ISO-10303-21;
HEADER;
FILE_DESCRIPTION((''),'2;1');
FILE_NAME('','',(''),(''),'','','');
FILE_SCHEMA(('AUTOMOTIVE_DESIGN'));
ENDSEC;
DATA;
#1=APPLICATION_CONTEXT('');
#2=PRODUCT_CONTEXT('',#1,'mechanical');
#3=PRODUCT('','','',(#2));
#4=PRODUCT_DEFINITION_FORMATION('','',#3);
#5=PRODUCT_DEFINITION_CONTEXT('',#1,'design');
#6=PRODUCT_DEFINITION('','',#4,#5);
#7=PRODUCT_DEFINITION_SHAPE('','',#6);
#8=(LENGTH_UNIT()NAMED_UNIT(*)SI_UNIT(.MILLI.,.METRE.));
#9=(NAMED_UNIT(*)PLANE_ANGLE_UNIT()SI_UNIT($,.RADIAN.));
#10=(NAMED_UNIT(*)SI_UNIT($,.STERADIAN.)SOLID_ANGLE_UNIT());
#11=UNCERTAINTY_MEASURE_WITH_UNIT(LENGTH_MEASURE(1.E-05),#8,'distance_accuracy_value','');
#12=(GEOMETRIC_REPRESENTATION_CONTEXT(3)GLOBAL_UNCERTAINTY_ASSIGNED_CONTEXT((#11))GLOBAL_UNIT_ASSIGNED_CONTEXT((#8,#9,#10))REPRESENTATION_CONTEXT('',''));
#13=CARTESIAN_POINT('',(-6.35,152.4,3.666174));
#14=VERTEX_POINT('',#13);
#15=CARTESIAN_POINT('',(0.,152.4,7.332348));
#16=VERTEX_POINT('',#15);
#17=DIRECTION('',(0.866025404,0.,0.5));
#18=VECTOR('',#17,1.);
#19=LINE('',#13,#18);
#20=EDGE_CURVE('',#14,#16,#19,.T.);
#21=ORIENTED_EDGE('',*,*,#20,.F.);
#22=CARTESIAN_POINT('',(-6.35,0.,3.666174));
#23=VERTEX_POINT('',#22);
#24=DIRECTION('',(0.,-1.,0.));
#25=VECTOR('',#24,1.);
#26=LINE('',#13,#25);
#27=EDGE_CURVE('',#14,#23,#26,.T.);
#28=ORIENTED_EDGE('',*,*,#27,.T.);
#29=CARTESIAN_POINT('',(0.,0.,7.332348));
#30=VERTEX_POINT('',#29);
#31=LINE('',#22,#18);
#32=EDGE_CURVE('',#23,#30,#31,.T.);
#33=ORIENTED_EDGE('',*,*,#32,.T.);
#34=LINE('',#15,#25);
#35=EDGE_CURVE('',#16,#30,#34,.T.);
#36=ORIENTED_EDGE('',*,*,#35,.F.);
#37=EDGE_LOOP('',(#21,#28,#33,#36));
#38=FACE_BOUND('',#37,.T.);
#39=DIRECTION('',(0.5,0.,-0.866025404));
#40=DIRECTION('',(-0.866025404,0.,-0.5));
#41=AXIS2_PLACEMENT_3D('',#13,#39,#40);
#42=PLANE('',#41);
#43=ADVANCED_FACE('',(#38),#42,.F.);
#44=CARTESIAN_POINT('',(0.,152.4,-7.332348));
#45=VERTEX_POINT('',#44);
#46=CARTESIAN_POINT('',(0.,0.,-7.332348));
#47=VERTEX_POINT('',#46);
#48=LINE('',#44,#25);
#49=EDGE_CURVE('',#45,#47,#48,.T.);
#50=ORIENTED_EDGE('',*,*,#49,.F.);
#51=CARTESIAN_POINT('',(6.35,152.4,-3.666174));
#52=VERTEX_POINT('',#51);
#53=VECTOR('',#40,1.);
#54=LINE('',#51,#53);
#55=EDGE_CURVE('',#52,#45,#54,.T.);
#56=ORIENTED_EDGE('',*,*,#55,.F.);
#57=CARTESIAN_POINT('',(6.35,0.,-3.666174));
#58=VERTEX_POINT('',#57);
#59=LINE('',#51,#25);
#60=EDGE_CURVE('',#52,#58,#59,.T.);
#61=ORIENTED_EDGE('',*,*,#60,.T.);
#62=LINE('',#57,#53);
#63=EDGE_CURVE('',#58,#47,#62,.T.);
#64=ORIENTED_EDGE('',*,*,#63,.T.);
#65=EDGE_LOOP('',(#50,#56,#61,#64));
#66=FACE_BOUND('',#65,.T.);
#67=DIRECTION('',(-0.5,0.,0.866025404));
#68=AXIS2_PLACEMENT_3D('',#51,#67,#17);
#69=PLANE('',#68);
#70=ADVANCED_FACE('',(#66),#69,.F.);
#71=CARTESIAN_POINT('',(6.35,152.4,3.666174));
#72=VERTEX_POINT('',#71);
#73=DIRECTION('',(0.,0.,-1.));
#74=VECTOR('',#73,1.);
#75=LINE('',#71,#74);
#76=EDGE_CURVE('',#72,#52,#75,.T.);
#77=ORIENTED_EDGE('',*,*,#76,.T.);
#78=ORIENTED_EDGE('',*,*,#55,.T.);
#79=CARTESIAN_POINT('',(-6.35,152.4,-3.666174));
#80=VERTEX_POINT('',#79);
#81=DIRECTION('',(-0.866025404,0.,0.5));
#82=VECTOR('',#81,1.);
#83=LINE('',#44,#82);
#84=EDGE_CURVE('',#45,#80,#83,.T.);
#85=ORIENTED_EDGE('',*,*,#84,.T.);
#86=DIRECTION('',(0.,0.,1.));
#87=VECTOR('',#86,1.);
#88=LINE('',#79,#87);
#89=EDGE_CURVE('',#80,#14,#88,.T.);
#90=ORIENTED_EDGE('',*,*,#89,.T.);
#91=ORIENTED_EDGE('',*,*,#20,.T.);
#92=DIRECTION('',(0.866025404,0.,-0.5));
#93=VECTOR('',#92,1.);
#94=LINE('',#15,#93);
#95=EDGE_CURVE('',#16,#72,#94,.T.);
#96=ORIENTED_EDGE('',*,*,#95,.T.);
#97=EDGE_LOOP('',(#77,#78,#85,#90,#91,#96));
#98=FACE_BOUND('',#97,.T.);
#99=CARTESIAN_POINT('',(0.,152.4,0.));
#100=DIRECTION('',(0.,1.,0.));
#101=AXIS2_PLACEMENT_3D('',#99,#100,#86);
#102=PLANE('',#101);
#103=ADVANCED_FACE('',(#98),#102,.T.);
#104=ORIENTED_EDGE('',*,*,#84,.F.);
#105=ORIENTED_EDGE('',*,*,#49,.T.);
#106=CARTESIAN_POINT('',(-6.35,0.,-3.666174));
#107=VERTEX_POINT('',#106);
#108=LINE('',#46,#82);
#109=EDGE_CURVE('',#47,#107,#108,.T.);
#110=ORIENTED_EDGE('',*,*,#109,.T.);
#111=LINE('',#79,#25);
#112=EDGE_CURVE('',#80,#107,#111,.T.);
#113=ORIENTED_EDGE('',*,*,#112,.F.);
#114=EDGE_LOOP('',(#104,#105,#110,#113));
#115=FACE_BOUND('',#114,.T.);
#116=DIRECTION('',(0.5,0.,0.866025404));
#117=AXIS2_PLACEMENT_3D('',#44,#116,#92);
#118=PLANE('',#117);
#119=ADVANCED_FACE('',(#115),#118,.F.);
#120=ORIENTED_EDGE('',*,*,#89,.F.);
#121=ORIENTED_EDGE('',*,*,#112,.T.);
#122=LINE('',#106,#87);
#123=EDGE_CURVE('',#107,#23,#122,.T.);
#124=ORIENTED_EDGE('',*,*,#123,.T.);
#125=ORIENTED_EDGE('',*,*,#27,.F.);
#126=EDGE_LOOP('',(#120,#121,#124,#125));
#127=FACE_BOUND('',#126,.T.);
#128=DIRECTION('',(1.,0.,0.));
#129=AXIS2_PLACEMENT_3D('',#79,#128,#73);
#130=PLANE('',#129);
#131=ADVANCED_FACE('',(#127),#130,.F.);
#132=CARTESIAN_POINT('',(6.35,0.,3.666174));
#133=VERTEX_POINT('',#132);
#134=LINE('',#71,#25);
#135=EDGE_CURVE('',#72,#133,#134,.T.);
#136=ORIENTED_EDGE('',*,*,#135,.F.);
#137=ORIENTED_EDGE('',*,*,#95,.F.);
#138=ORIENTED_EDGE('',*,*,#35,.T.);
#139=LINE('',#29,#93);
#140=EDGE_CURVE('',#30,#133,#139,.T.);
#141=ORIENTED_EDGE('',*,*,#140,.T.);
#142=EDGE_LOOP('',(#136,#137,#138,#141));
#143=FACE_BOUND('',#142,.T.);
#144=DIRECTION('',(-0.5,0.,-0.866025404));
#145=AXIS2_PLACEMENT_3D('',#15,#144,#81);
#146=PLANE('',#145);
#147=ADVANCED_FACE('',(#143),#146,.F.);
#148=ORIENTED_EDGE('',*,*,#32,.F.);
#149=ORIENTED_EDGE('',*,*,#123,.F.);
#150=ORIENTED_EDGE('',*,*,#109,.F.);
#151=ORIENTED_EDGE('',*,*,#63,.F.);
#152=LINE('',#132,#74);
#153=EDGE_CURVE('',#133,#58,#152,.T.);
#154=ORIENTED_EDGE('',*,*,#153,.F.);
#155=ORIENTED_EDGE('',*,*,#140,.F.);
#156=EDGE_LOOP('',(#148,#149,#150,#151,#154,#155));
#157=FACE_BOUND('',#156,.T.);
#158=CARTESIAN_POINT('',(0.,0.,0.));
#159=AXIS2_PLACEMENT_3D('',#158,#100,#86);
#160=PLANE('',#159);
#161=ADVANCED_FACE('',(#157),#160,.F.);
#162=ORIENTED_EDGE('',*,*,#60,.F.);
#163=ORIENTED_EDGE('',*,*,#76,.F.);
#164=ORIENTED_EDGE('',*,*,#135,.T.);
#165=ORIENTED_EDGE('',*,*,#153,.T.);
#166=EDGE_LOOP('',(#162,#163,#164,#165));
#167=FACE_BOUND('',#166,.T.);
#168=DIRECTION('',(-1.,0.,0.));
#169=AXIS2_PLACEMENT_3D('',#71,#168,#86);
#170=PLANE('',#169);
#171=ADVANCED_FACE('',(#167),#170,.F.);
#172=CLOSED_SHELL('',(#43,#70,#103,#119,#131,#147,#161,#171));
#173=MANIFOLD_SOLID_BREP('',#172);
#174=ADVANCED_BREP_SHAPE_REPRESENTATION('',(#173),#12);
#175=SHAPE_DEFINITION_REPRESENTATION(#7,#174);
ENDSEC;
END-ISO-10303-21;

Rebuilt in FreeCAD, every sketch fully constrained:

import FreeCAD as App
import Part
import Sketcher

V = App.Vector
Q = App.Units.Quantity

doc = App.newDocument("Part")
body = doc.addObject("PartDesign::Body", "Body")

sketch1 = body.newObject("Sketcher::SketchObject", "Sketch")
sketch1.AttachmentSupport = (doc.getObject("XZ_Plane"), [""])
sketch1.MapMode = "FlatFace"
sketch1.addGeometry(Part.LineSegment(V(6, -4, 0), V(0, -7, 0)), False)
sketch1.addGeometry(Part.LineSegment(V(0, -7, 0), V(-6, -4, 0)), False)
sketch1.addGeometry(Part.LineSegment(V(-6, -4, 0), V(-6, 4, 0)), False)
sketch1.addGeometry(Part.LineSegment(V(-6, 4, 0), V(0, 7, 0)), False)
sketch1.addGeometry(Part.LineSegment(V(0, 7, 0), V(6, 4, 0)), False)
sketch1.addGeometry(Part.LineSegment(V(6, 4, 0), V(6, -4, 0)), False)
sketch1.addConstraint(Sketcher.Constraint("Coincident", 0, 2, 1, 1))
sketch1.addConstraint(Sketcher.Constraint("Coincident", 1, 2, 2, 1))
sketch1.addConstraint(Sketcher.Constraint("Coincident", 2, 2, 3, 1))
sketch1.addConstraint(Sketcher.Constraint("Coincident", 3, 2, 4, 1))
sketch1.addConstraint(Sketcher.Constraint("Coincident", 4, 2, 5, 1))
sketch1.addConstraint(Sketcher.Constraint("Coincident", 5, 2, 0, 1))
sketch1.addConstraint(Sketcher.Constraint("Vertical", 2))
sketch1.addConstraint(Sketcher.Constraint("Vertical", 5))
sketch1.addConstraint(Sketcher.Constraint("Symmetric", 0, 2, 3, 2, -1, 1))
sketch1.addConstraint(Sketcher.Constraint("Symmetric", 1, 2, 4, 2, -1, 1))
sketch1.addConstraint(Sketcher.Constraint("PointOnObject", 0, 2, -2))
sketch1.addConstraint(Sketcher.Constraint("Parallel", 0, 3))
sketch1.addConstraint(Sketcher.Constraint("Horizontal", 2, 2, 4, 2))
sketch1.addConstraint(Sketcher.Constraint("Angle", 0, Q("-150 deg")))
sketch1.addConstraint(Sketcher.Constraint("DistanceX", 2, 2, 4, 2, Q("0.5 in")))
sketch1.addConstraint(Sketcher.Constraint("DistanceY", 2, 1, 2, 2, 7.332348))
pad1 = body.newObject("PartDesign::Pad", "Pad")
pad1.Profile = sketch1
pad1.Length = Q("6 in")
pad1.Reversed = True

doc.recompute()
